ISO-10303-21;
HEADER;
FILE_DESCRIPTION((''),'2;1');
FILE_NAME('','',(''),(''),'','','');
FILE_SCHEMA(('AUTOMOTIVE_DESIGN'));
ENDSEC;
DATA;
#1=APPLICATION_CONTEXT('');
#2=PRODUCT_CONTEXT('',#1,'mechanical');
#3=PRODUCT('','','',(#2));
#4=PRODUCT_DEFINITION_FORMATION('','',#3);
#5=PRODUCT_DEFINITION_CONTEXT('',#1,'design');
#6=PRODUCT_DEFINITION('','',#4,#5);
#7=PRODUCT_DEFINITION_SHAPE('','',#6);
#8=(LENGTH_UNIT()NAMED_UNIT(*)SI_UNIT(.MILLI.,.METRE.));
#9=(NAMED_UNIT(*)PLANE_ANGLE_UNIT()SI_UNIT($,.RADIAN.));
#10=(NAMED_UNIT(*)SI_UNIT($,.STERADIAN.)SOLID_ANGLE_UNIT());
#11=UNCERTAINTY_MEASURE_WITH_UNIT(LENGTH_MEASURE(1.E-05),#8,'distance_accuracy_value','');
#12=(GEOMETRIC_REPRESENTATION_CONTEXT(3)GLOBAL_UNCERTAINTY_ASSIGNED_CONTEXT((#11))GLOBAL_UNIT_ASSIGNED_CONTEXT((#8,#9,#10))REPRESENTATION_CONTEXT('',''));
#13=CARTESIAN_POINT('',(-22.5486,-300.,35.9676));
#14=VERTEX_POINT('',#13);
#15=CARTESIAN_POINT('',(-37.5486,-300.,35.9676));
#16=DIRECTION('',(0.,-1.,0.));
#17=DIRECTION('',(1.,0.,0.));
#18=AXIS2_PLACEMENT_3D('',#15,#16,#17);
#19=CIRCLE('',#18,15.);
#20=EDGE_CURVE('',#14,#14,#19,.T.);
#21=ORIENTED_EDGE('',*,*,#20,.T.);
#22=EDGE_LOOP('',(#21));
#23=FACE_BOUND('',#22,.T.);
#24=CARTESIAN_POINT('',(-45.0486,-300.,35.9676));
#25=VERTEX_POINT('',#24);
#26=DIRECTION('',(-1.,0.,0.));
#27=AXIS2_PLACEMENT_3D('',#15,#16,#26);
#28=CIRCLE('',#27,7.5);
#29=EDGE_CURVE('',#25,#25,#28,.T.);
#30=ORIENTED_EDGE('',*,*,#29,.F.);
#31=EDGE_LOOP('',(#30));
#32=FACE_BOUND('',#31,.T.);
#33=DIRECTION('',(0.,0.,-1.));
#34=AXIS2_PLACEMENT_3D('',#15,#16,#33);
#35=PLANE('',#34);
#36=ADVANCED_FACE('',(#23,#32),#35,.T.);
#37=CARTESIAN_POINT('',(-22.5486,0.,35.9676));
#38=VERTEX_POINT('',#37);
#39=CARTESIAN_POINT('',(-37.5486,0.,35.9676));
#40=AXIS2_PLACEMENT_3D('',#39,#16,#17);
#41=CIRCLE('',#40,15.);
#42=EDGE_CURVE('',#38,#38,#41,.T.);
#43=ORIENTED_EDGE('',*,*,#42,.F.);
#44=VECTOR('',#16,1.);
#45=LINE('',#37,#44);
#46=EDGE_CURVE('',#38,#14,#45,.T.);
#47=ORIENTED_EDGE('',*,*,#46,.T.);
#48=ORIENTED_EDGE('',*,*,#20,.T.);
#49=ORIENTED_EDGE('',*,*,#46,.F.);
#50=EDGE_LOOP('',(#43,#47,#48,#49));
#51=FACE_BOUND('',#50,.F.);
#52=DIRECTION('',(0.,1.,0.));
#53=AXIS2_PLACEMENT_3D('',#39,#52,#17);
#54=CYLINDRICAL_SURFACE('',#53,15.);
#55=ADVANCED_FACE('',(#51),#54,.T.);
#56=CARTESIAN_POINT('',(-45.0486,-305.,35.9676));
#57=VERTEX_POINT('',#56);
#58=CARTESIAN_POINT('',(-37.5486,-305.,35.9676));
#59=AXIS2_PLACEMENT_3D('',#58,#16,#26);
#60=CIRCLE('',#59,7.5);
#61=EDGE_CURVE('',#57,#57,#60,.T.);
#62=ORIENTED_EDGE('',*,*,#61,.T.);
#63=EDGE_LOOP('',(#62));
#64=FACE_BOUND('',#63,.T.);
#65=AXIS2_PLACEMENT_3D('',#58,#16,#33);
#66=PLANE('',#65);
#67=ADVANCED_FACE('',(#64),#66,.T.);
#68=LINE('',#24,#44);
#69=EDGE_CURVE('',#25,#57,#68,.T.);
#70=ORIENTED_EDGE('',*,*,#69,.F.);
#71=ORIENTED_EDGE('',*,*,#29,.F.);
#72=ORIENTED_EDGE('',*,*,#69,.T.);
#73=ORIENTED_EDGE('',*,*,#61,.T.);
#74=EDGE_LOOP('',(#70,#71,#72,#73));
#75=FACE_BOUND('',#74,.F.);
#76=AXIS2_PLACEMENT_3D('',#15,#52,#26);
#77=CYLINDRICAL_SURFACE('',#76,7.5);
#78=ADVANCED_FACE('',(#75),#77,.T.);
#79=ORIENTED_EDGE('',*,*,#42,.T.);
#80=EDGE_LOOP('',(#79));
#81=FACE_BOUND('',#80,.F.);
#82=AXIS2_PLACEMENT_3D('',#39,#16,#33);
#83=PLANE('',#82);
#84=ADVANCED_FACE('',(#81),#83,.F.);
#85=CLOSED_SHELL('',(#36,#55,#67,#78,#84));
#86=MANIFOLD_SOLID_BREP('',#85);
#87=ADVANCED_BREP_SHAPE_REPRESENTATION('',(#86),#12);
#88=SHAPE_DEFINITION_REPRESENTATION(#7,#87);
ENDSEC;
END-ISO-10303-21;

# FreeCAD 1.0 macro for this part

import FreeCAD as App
import Part
import Sketcher
Q = App.Units.Quantity

doc = App.newDocument("Part")
body = doc.addObject("PartDesign::Body", "Body")

sketch1 = doc.addObject("Sketcher::SketchObject", "Sketch")
body.addObject(sketch1)
sketch1.AttachmentSupport = (doc.XZ_Plane, [""])
sketch1.MapMode = "FlatFace"
sketch1.addGeometry(Part.Circle(App.Vector(-38, 36, 0), App.Vector(0, 0, 1), 15), False)
sketch1.addConstraint([
    Sketcher.Constraint("Diameter", 0, Q("30 mm")),
    Sketcher.Constraint("DistanceX", 0, 3, -1, 1, Q("37.5486 mm")),
    Sketcher.Constraint("DistanceY", -1, 1, 0, 3, Q("35.9676 mm")),
])
pad1 = doc.addObject("PartDesign::Pad", "Pad")
body.addObject(pad1)
pad1.Profile = sketch1
pad1.Length = 300

sketch2 = doc.addObject("Sketcher::SketchObject", "Sketch001")
body.addObject(sketch2)
sketch2.AttachmentSupport = (doc.XZ_Plane, [""])
sketch2.MapMode = "FlatFace"
sketch2.AttachmentOffset = App.Placement(App.Vector(0, 0, 300), App.Rotation())
sketch2.addGeometry(Part.Circle(App.Vector(-38, 36, 0), App.Vector(0, 0, 1), 8), False)
sketch2.addConstraint([
    Sketcher.Constraint("Diameter", 0, Q("15 mm")),
    Sketcher.Constraint("DistanceX", 0, 3, -1, 1, Q("37.5486 mm")),
    Sketcher.Constraint("DistanceY", -1, 1, 0, 3, Q("35.9676 mm")),
])
pad2 = doc.addObject("PartDesign::Pad", "Pad001")
body.addObject(pad2)
pad2.Profile = sketch2
pad2.Length = 5

doc.recompute()
